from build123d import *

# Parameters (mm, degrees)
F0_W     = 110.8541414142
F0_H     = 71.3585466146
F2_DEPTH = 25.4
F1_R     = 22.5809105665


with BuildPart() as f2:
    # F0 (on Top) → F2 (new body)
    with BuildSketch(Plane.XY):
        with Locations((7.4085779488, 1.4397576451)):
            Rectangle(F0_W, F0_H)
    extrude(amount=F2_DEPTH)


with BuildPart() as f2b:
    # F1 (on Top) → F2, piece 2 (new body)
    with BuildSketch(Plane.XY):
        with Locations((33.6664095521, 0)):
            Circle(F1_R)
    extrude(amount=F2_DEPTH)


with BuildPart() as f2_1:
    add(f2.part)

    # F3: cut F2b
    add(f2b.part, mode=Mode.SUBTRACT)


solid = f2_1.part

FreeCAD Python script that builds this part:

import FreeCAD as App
import Part
import Sketcher
from FreeCAD import Vector
Q = App.Units.Quantity


def add_polygon(sketch, points):
    """Adds a closed chain of lines whose ends are joined by coincident constraints."""
    first, n = sketch.GeometryCount, len(points)
    for a, b in zip(points, points[1:] + points[:1]):
        sketch.addGeometry(Part.LineSegment(App.Vector(*a, 0), App.Vector(*b, 0)), False)
    for i in range(n):
        sketch.addConstraint(Sketcher.Constraint("Coincident", first + i, 2, first + (i + 1) % n, 1))

doc = App.newDocument("Part")
body = doc.addObject("PartDesign::Body", "Body")

sketch1 = body.newObject("Sketcher::SketchObject", "Sketch")
sketch1.AttachmentSupport = (doc.getObject("XY_Plane"), [""])
sketch1.MapMode = "FlatFace"
add_polygon(sketch1, [(-48, 37), (-48, -34), (63, -34), (63, 37)])
sketch1.addConstraint(Sketcher.Constraint("Vertical", 0))
sketch1.addConstraint(Sketcher.Constraint("Horizontal", 1))
sketch1.addConstraint(Sketcher.Constraint("Vertical", 2))
sketch1.addConstraint(Sketcher.Constraint("Horizontal", 3))
sketch1.addConstraint(Sketcher.Constraint("DistanceX", 1, 1, 1, 2, 110.854141))
sketch1.addConstraint(Sketcher.Constraint("DistanceY", 0, 2, 0, 1, 71.358547))
sketch1.addConstraint(Sketcher.Constraint("DistanceX", -1, 1, 1, 2, 62.835649))
sketch1.addConstraint(Sketcher.Constraint("DistanceY", -1, 1, 2, 2, 37.119031))
pad1 = body.newObject("PartDesign::Pad", "Pad")
pad1.Profile = sketch1
pad1.Length = Q("1 in")
body2 = doc.addObject("PartDesign::Body", "Body001")

sketch2 = body2.newObject("Sketcher::SketchObject", "Sketch001")
sketch2.AttachmentSupport = (doc.getObject("XY_Plane001"), [""])
sketch2.MapMode = "FlatFace"
sketch2.addGeometry(Part.Circle(Vector(34, 0, 0), Vector(0, 0, 1), 23), False)
sketch2.addConstraint(Sketcher.Constraint("PointOnObject", 0, 3, -1))
sketch2.addConstraint(Sketcher.Constraint("Diameter", 0, 45.161821))
sketch2.addConstraint(Sketcher.Constraint("DistanceX", -1, 1, 0, 3, 33.66641))
pad2 = body2.newObject("PartDesign::Pad", "Pad001")
pad2.Profile = sketch2
pad2.Length = Q("1 in")
doc.recompute()

boolean = body.newObject("PartDesign::Boolean", "Boolean")
boolean.Type = "Cut"
boolean.addObjects([body2])

doc.recompute()
